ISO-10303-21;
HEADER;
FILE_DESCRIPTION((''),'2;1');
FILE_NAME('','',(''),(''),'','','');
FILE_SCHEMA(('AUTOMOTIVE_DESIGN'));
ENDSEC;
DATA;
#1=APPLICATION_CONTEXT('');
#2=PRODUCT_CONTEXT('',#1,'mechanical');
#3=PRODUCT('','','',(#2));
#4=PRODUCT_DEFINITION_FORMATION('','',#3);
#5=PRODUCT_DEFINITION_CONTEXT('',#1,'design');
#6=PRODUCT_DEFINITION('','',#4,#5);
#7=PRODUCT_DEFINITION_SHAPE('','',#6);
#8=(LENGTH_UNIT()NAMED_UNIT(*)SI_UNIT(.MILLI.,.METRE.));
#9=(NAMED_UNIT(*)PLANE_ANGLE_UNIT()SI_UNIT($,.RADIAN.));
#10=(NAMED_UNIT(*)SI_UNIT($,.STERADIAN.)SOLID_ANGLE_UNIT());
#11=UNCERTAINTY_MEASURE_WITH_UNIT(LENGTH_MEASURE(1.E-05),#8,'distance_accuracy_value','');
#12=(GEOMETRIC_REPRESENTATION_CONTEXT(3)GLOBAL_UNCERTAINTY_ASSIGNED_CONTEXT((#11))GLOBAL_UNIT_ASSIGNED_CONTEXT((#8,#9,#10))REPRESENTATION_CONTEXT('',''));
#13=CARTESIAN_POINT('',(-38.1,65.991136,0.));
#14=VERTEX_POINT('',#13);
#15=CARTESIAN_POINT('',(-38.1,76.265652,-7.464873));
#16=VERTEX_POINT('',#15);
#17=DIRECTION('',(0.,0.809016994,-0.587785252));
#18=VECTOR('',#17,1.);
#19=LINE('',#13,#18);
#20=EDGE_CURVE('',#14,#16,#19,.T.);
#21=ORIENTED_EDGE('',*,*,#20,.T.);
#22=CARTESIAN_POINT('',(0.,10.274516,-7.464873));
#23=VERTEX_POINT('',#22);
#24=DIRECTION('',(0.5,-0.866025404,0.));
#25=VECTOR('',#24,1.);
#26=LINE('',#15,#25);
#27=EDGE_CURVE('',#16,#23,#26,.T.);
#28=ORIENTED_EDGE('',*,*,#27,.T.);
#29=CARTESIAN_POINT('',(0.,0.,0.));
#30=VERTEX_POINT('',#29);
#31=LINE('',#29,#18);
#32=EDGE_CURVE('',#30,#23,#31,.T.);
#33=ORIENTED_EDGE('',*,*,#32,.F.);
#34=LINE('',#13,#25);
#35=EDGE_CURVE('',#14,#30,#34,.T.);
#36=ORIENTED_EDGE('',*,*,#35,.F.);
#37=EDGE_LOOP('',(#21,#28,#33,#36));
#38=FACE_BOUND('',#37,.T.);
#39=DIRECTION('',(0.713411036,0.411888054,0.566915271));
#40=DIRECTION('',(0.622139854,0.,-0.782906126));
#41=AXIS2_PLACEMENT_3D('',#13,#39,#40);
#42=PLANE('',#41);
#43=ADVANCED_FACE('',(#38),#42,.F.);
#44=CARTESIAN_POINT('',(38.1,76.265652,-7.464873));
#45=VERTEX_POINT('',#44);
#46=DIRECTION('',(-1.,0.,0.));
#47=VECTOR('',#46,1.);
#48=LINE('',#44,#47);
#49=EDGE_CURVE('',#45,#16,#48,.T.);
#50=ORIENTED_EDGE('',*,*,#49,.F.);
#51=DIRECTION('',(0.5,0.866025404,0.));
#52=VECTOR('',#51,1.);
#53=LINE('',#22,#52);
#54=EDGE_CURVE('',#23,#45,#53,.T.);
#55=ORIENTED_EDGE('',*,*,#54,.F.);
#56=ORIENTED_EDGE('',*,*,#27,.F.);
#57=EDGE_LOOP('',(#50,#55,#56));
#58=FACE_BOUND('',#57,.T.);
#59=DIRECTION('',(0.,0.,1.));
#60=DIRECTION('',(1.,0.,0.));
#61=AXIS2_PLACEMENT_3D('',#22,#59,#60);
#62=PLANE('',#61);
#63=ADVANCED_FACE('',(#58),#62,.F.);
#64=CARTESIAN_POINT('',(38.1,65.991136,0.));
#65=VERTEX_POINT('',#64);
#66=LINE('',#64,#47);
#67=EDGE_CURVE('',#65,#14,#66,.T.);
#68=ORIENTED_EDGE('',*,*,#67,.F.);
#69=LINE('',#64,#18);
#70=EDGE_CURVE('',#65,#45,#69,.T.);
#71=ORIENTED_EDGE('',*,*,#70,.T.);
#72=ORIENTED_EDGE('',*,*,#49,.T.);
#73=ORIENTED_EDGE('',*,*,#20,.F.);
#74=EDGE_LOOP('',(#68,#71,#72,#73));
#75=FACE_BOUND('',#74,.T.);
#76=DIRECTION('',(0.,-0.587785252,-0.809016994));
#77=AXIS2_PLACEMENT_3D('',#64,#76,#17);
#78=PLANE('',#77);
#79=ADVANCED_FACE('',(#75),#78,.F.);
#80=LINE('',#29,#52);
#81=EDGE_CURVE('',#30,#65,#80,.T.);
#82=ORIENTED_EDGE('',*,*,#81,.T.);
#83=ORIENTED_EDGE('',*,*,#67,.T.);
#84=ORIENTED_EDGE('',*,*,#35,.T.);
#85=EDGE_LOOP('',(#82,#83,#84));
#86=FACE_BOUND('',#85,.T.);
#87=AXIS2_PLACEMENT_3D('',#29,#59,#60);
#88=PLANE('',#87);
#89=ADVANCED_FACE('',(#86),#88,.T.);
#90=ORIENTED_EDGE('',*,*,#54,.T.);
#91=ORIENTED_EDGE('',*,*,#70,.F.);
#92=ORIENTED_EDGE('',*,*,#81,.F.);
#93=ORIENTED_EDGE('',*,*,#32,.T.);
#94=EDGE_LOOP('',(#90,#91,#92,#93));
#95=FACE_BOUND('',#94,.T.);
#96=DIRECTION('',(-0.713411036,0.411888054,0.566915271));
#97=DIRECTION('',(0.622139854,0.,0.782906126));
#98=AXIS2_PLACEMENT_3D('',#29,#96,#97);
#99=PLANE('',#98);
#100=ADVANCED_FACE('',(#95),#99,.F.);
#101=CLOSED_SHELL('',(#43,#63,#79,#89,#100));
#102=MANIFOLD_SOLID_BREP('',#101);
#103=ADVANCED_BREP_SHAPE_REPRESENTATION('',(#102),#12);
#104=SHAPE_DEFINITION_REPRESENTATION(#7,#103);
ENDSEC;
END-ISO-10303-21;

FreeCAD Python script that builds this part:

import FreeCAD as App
import Part
import Sketcher
Q = App.Units.Quantity


def add_polygon(sketch, points):
    """Adds a closed chain of lines whose ends are joined by coincident constraints."""
    first, n = sketch.GeometryCount, len(points)
    for a, b in zip(points, points[1:] + points[:1]):
        sketch.addGeometry(Part.LineSegment(App.Vector(*a, 0), App.Vector(*b, 0)), False)
    for i in range(n):
        sketch.addConstraint(Sketcher.Constraint("Coincident", first + i, 2, first + (i + 1) % n, 1))

doc = App.newDocument("Part")
body = doc.addObject("PartDesign::Body", "Body")

# Sketch on XY plane
sketch1 = body.newObject("Sketcher::SketchObject", "Sketch")
sketch1.AttachmentSupport = (doc.getObject("XY_Plane"), [""])
sketch1.MapMode = "FlatFace"
add_polygon(sketch1, [(0, 0), (38, 66), (-38, 66)])  # lines 0-2
sketch1.addConstraint(Sketcher.Constraint("Horizontal", 1))
sketch1.addConstraint(Sketcher.Constraint("Coincident", 2, 2, -1, 1))
sketch1.addConstraint(Sketcher.Constraint("Equal", 0, 2))
sketch1.addConstraint(Sketcher.Constraint("DistanceX", 1, 2, 1, 1, Q("3 in")))
sketch1.addConstraint(Sketcher.Constraint("Distance", 0, Q("3 in")))

# Sketch on an angled plane
sketch2 = body.newObject("Sketcher::SketchObject", "Sketch001")
sketch2.Placement = App.Placement(App.Vector(0, 19.890144, 27.376434), App.Rotation(App.Vector(0, 0.809016994, -0.587785252), App.Vector(0.999999999, 0, 0), App.Vector(0, -0.587785252, -0.809016994), "ZXY"))
sketch2.addGeometry(Part.LineSegment(App.Vector(47, 0, 0), App.Vector(59, 0, 0)), False)
sketch2.addConstraint(Sketcher.Constraint("Horizontal", 0))
sketch2.addConstraint(Sketcher.Constraint("PointOnObject", 0, 1, -1))
sketch2.addConstraint(Sketcher.Constraint("DistanceX", 0, 1, 0, 2, Q("0.5 in")))
sketch2.addConstraint(Sketcher.Constraint("DistanceX", -1, 1, 0, 1, Q("46.575572 mm")))
doc.recompute()

additivepipe = body.newObject("PartDesign::AdditivePipe", "AdditivePipe")
additivepipe.Profile = sketch1
additivepipe.Spine = (sketch2, ["Edge1"])

doc.recompute()
